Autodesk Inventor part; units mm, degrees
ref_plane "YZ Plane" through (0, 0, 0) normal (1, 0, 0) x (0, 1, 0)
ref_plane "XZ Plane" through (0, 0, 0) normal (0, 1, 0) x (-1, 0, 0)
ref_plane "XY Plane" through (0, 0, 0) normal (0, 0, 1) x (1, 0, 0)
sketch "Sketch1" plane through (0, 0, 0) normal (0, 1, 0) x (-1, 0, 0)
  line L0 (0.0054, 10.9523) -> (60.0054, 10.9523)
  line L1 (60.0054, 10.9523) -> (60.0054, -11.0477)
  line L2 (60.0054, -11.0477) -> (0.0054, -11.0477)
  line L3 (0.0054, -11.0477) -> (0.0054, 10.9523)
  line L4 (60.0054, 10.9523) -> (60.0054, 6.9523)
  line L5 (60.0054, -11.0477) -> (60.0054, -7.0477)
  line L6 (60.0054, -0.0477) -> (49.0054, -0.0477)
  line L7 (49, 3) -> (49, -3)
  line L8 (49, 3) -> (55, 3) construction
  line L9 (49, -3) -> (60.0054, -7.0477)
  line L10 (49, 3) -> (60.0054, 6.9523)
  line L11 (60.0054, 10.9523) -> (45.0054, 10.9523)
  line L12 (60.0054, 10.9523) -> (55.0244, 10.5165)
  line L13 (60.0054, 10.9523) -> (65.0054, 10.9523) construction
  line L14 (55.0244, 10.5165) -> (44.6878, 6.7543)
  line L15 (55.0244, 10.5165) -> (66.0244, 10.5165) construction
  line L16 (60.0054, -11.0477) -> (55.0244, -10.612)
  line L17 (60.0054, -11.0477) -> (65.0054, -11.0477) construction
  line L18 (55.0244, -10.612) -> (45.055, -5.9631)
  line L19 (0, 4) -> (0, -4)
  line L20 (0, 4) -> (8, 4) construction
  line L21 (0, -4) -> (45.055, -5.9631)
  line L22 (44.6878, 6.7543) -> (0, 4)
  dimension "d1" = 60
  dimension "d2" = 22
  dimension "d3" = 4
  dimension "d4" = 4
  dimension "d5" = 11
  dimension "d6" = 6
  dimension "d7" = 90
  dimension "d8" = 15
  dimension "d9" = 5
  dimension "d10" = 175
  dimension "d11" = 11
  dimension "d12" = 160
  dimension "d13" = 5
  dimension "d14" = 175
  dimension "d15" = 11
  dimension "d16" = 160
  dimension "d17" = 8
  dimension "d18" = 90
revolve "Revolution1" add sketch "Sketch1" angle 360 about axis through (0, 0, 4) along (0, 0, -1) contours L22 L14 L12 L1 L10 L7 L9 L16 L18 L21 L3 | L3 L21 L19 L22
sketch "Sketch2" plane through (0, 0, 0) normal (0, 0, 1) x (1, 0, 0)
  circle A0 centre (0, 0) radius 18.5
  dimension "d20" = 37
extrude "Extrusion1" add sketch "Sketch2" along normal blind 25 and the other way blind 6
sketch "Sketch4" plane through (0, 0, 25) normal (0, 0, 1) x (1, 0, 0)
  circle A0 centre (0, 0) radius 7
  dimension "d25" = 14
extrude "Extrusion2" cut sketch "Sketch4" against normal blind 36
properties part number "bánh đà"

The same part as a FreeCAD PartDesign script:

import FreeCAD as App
import Part
import Sketcher
from FreeCAD import Vector
Q = App.Units.Quantity

doc = App.newDocument("Part")
params = doc.addObject("Spreadsheet::Sheet", "Params")
for row, (alias, value) in enumerate([
    ("sketch1_height", "8 mm"),
    ("sketch1_height2", "4 mm"),
    ("sketch1_height3", "6 mm"),
    ("sketch1_length", "11 mm"),
    ("sketch1_length2", "5 mm"),
    ("revolution_angle", "360 deg"),
    ("sketch2_diameter", "37 mm"),
    ("pad1_length", "25 mm"),
    ("pad1_length2", "6 mm"),
    ("sketch3_diameter", "14 mm"),
    ("pocket1_length", "36 mm"),
], start=1):
    params.set(f"A{row}", alias)
    params.set(f"B{row}", "=" + value)
    params.setAlias(f"B{row}", alias)

body = doc.addObject("PartDesign::Body", "Body")

# Sketch on XZ plane
sketch1 = doc.addObject("Sketcher::SketchObject", "Sketch")
body.addObject(sketch1)
sketch1.AttachmentSupport = (doc.XZ_Plane, [""])
sketch1.MapMode = "FlatFace"
sketch1.addGeometry([
    Part.LineSegment(Vector(-44.6878, 6.7543, 0), Vector(0, 4, 0)),  # 0
    Part.LineSegment(Vector(0, 4, 0), Vector(0, -4, 0)),  # 1
    Part.LineSegment(Vector(0, -4, 0), Vector(-45.055, -5.9631, 0)),  # 2
    Part.LineSegment(Vector(-45.055, -5.9631, 0), Vector(-55.0244, -10.612, 0)),  # 3
    Part.LineSegment(Vector(-55.0244, -10.612, 0), Vector(-60.0054, -11.0477, 0)),  # 4
    Part.LineSegment(Vector(-60.0054, -11.0477, 0), Vector(-60.0054, -7.0477, 0)),  # 5
    Part.LineSegment(Vector(-60.0054, -7.0477, 0), Vector(-49, -3, 0)),  # 6
    Part.LineSegment(Vector(-49, -3, 0), Vector(-49, 3, 0)),  # 7
    Part.LineSegment(Vector(-49, 3, 0), Vector(-60.0054, 6.9523, 0)),  # 8
    Part.LineSegment(Vector(-60.0054, 6.9523, 0), Vector(-60.0054, 10.9523, 0)),  # 9
    Part.LineSegment(Vector(-60.0054, 10.9523, 0), Vector(-55.0244, 10.5165, 0)),  # 10
    Part.LineSegment(Vector(-55.0244, 10.5165, 0), Vector(-44.6878, 6.7543, 0)),  # 11
], False)
sketch1.addConstraint([
    Sketcher.Constraint("Coincident", 0, 2, 1, 1),
    Sketcher.Constraint("Coincident", 1, 2, 2, 1),
    Sketcher.Constraint("Coincident", 2, 2, 3, 1),
    Sketcher.Constraint("Coincident", 3, 2, 4, 1),
    Sketcher.Constraint("Coincident", 4, 2, 5, 1),
    Sketcher.Constraint("Coincident", 5, 2, 6, 1),
    Sketcher.Constraint("Coincident", 6, 2, 7, 1),
    Sketcher.Constraint("Coincident", 7, 2, 8, 1),
    Sketcher.Constraint("Coincident", 8, 2, 9, 1),
    Sketcher.Constraint("Coincident", 9, 2, 10, 1),
    Sketcher.Constraint("Coincident", 10, 2, 11, 1),
    Sketcher.Constraint("Coincident", 11, 2, 0, 1),
    Sketcher.Constraint("Vertical", 1),
    Sketcher.Constraint("Vertical", 5),
    Sketcher.Constraint("Vertical", 7),
    Sketcher.Constraint("Vertical", 9),
    Sketcher.Constraint("Symmetric", 0, 2, 1, 2, -1, 1),
    Sketcher.Constraint("Vertical", 5, 2, 8, 2),
    Sketcher.Constraint("Vertical", 3, 2, 10, 2),
    Sketcher.Constraint("Equal", 5, 9),
    Sketcher.Constraint("Equal", 4, 10),
    Sketcher.Constraint("Equal", 3, 11),
    Sketcher.Constraint("DistanceY", 1, 2, 1, 1, Q("8 mm")),
    Sketcher.Constraint("DistanceY", 5, 1, 5, 2, Q("4 mm")),
    Sketcher.Constraint("DistanceY", 7, 1, 7, 2, Q("6 mm")),
    Sketcher.Constraint("Angle", 10, Q("-5.0002 deg")),
    Sketcher.Constraint("Distance", 3, Q("11 mm")),
    Sketcher.Constraint("Distance", 4, Q("5 mm")),
    Sketcher.Constraint("DistanceY", 4, 2, 9, 2, Q("22 mm")),
    Sketcher.Constraint("Angle", 3, Q("-154.9996 deg")),
    Sketcher.Constraint("Angle", 11, Q("-20 deg")),
    Sketcher.Constraint("DistanceX", 6, 2, -1, 1, Q("49 mm")),
    Sketcher.Constraint("DistanceY", 6, 2, -1, 1, Q("3 mm")),
    Sketcher.Constraint("DistanceX", 2, 2, -1, 1, Q("45.055 mm")),
    Sketcher.Constraint("DistanceY", 2, 2, -1, 1, Q("5.963 mm")),
])
sketch1.setExpression("Constraints[22]", "Params.sketch1_height")
sketch1.setExpression("Constraints[23]", "Params.sketch1_height2")
sketch1.setExpression("Constraints[24]", "Params.sketch1_height3")
sketch1.setExpression("Constraints[26]", "Params.sketch1_length")
sketch1.setExpression("Constraints[27]", "Params.sketch1_length2")
revolution = doc.addObject("PartDesign::Revolution", "Revolution")
body.addObject(revolution)
revolution.Profile = sketch1
revolution.ReferenceAxis = (sketch1, ["V_Axis"])
revolution.setExpression("Angle", "Params.revolution_angle")

# Sketch on XY plane
sketch2 = doc.addObject("Sketcher::SketchObject", "Sketch001")
body.addObject(sketch2)
sketch2.AttachmentSupport = (doc.XY_Plane, [""])
sketch2.MapMode = "FlatFace"
sketch2.addGeometry(Part.Circle(Vector(0, 0, 0), Vector(0, 0, 1), 18.5), False)
sketch2.addConstraint([
    Sketcher.Constraint("Coincident", 0, 3, -1, 1),
    Sketcher.Constraint("Diameter", 0, Q("37 mm")),
])
sketch2.setExpression("Constraints[1]", "Params.sketch2_diameter")
pad1 = doc.addObject("PartDesign::Pad", "Pad")
body.addObject(pad1)
pad1.Profile = sketch2
pad1.Type = "TwoLengths"
pad1.setExpression("Length", "Params.pad1_length")
pad1.setExpression("Length2", "Params.pad1_length2")

# Sketch on XY plane
sketch3 = doc.addObject("Sketcher::SketchObject", "Sketch002")
body.addObject(sketch3)
sketch3.AttachmentSupport = (doc.XY_Plane, [""])
sketch3.MapMode = "FlatFace"
sketch3.AttachmentOffset = App.Placement(Vector(0, 0, 25), App.Rotation())
sketch3.addGeometry(Part.Circle(Vector(0, 0, 0), Vector(0, 0, 1), 7), False)
sketch3.addConstraint([
    Sketcher.Constraint("Coincident", 0, 3, -1, 1),
    Sketcher.Constraint("Diameter", 0, Q("14 mm")),
])
sketch3.setExpression("Constraints[1]", "Params.sketch3_diameter")
pocket1 = doc.addObject("PartDesign::Pocket", "Pocket")
body.addObject(pocket1)
pocket1.Profile = sketch3
pocket1.setExpression("Length", "Params.pocket1_length")

doc.recompute()
